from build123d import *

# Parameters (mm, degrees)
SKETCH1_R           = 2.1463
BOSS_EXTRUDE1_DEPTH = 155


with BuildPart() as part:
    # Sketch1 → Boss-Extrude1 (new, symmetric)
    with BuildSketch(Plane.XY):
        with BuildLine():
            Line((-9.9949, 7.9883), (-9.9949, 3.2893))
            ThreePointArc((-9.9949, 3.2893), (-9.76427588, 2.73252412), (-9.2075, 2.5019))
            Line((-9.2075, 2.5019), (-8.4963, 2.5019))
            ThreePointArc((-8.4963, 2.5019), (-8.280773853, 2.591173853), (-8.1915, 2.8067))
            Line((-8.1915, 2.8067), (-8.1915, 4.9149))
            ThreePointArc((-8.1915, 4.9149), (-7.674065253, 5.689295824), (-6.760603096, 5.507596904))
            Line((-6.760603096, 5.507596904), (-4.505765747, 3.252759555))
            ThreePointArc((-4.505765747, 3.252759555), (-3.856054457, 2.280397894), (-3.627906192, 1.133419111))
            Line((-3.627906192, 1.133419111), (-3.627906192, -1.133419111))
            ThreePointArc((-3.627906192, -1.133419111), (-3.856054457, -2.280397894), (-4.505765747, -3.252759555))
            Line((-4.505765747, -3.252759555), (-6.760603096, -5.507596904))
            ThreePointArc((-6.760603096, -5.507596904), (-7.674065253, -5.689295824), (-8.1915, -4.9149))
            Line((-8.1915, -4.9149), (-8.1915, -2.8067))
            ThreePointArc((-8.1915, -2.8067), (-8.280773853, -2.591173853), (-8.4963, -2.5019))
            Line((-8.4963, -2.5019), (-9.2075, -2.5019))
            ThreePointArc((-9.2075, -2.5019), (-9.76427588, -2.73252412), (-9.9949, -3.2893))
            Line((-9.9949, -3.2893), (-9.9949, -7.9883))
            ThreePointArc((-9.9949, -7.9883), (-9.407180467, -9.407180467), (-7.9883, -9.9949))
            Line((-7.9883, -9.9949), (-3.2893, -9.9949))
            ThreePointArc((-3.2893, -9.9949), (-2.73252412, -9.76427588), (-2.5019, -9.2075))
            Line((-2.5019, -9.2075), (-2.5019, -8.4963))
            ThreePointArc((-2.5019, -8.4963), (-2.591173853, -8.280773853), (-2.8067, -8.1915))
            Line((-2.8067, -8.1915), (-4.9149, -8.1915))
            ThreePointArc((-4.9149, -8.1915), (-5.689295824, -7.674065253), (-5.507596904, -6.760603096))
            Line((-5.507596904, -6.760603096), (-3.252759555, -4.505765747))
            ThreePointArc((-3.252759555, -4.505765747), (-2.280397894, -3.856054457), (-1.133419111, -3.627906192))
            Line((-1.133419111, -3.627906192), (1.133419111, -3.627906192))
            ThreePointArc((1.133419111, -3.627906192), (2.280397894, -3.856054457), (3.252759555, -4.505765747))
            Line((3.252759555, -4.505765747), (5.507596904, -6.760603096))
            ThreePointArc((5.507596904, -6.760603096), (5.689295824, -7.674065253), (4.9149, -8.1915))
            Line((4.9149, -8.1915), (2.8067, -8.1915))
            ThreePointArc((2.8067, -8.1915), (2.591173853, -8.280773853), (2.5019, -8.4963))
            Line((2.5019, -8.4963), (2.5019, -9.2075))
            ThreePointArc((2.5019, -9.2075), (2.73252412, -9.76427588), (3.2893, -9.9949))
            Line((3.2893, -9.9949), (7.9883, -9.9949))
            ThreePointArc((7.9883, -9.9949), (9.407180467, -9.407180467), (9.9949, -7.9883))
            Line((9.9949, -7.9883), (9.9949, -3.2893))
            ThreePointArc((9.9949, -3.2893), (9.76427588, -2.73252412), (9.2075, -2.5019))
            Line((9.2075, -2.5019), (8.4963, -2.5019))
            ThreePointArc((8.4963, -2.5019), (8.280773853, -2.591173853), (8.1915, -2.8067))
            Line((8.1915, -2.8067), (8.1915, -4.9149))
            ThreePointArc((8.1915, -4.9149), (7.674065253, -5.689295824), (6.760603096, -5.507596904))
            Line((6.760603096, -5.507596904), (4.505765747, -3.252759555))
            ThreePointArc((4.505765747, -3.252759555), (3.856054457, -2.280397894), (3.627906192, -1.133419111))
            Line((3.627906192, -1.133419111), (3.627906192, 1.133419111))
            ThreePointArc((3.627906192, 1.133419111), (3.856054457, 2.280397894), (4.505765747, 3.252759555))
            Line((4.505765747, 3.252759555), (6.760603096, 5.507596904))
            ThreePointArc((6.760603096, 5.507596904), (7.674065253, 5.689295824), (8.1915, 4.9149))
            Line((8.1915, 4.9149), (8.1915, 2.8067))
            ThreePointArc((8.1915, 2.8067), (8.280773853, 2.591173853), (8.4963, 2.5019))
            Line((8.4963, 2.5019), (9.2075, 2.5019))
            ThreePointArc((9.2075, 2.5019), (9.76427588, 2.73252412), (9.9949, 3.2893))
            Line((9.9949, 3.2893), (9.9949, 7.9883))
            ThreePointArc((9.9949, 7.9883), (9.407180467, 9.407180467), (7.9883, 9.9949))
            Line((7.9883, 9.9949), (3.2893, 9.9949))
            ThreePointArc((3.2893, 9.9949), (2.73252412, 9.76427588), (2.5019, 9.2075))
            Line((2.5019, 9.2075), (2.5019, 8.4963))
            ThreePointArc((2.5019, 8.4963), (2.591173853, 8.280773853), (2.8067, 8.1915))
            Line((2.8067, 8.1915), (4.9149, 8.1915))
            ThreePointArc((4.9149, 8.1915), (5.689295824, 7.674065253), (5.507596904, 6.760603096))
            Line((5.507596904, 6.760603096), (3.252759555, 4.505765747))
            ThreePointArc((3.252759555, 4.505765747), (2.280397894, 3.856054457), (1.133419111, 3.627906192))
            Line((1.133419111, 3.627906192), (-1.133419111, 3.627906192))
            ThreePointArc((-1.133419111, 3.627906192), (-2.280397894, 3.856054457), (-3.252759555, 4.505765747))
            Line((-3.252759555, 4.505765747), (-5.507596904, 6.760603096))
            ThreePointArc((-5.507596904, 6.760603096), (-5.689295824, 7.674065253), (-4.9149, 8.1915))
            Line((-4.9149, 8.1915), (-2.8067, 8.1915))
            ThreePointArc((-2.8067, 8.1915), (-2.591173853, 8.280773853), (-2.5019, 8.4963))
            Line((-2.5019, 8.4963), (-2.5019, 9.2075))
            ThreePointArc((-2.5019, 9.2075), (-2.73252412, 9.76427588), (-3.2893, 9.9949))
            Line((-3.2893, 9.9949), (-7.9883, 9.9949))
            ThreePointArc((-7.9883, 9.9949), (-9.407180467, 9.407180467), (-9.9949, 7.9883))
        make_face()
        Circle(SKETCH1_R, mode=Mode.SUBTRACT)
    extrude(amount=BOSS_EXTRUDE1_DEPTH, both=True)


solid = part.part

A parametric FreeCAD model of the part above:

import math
import FreeCAD as App
import Part
import Sketcher
Q = App.Units.Quantity

doc = App.newDocument("Part")
body = doc.addObject("PartDesign::Body", "Body")

sketch1 = doc.addObject("Sketcher::SketchObject", "Sketch")
body.addObject(sketch1)
sketch1.AttachmentSupport = (doc.XY_Plane, [""])
sketch1.MapMode = "FlatFace"
sketch1.addGeometry([
    Part.LineSegment(App.Vector(-9.99, 7.99, 0), App.Vector(-9.99, 3.29, 0)),
    Part.ArcOfCircle(Part.Circle(App.Vector(-9.21, 3.29, 0), App.Vector(0, 0, 1), 0.79), math.radians(180), math.radians(270)),
    Part.LineSegment(App.Vector(-9.21, 2.5, 0), App.Vector(-8.5, 2.5, 0)),
    Part.ArcOfCircle(Part.Circle(App.Vector(-8.5, 2.81, 0), App.Vector(0, 0, 1), 0.3), math.radians(-90), math.radians(0)),
    Part.LineSegment(App.Vector(-8.19, 2.81, 0), App.Vector(-8.19, 4.91, 0)),
    Part.ArcOfCircle(Part.Circle(App.Vector(-7.35, 4.91, 0), App.Vector(0, 0, 1), 0.84), math.radians(45), math.radians(180)),
    Part.LineSegment(App.Vector(-6.76, 5.51, 0), App.Vector(-4.51, 3.25, 0)),
    Part.ArcOfCircle(Part.Circle(App.Vector(-6.63, 1.13, 0), App.Vector(0, 0, 1), 3), math.radians(0), math.radians(45)),
    Part.LineSegment(App.Vector(-3.63, 1.13, 0), App.Vector(-3.63, -1.13, 0)),
    Part.ArcOfCircle(Part.Circle(App.Vector(-6.63, -1.13, 0), App.Vector(0, 0, 1), 3), math.radians(-45), math.radians(0)),
    Part.LineSegment(App.Vector(-4.51, -3.25, 0), App.Vector(-6.76, -5.51, 0)),
    Part.ArcOfCircle(Part.Circle(App.Vector(-7.35, -4.91, 0), App.Vector(0, 0, 1), 0.84), math.radians(180), math.radians(315)),
    Part.LineSegment(App.Vector(-8.19, -4.91, 0), App.Vector(-8.19, -2.81, 0)),
    Part.ArcOfCircle(Part.Circle(App.Vector(-8.5, -2.81, 0), App.Vector(0, 0, 1), 0.3), math.radians(0), math.radians(90)),
    Part.LineSegment(App.Vector(-8.5, -2.5, 0), App.Vector(-9.21, -2.5, 0)),
    Part.ArcOfCircle(Part.Circle(App.Vector(-9.21, -3.29, 0), App.Vector(0, 0, 1), 0.79), math.radians(90), math.radians(180)),
    Part.LineSegment(App.Vector(-9.99, -3.29, 0), App.Vector(-9.99, -7.99, 0)),
    Part.ArcOfCircle(Part.Circle(App.Vector(-7.99, -7.99, 0), App.Vector(0, 0, 1), 2.01), math.radians(180), math.radians(270)),
    Part.LineSegment(App.Vector(-7.99, -9.99, 0), App.Vector(-3.29, -9.99, 0)),
    Part.ArcOfCircle(Part.Circle(App.Vector(-3.29, -9.21, 0), App.Vector(0, 0, 1), 0.79), math.radians(-90), math.radians(0)),
    Part.LineSegment(App.Vector(-2.5, -9.21, 0), App.Vector(-2.5, -8.5, 0)),
    Part.ArcOfCircle(Part.Circle(App.Vector(-2.81, -8.5, 0), App.Vector(0, 0, 1), 0.3), math.radians(0), math.radians(90)),
    Part.LineSegment(App.Vector(-2.81, -8.19, 0), App.Vector(-4.91, -8.19, 0)),
    Part.ArcOfCircle(Part.Circle(App.Vector(-4.91, -7.35, 0), App.Vector(0, 0, 1), 0.84), math.radians(135), math.radians(270)),
    Part.LineSegment(App.Vector(-5.51, -6.76, 0), App.Vector(-3.25, -4.51, 0)),
    Part.ArcOfCircle(Part.Circle(App.Vector(-1.13, -6.63, 0), App.Vector(0, 0, 1), 3), math.radians(90), math.radians(135)),
    Part.LineSegment(App.Vector(-1.13, -3.63, 0), App.Vector(1.13, -3.63, 0)),
    Part.ArcOfCircle(Part.Circle(App.Vector(1.13, -6.63, 0), App.Vector(0, 0, 1), 3), math.radians(45), math.radians(90)),
    Part.LineSegment(App.Vector(3.25, -4.51, 0), App.Vector(5.51, -6.76, 0)),
    Part.ArcOfCircle(Part.Circle(App.Vector(4.91, -7.35, 0), App.Vector(0, 0, 1), 0.84), math.radians(-90), math.radians(45)),
    Part.LineSegment(App.Vector(4.91, -8.19, 0), App.Vector(2.81, -8.19, 0)),
    Part.ArcOfCircle(Part.Circle(App.Vector(2.81, -8.5, 0), App.Vector(0, 0, 1), 0.3), math.radians(90), math.radians(180)),
    Part.LineSegment(App.Vector(2.5, -8.5, 0), App.Vector(2.5, -9.21, 0)),
    Part.ArcOfCircle(Part.Circle(App.Vector(3.29, -9.21, 0), App.Vector(0, 0, 1), 0.79), math.radians(180), math.radians(270)),
    Part.LineSegment(App.Vector(3.29, -9.99, 0), App.Vector(7.99, -9.99, 0)),
    Part.ArcOfCircle(Part.Circle(App.Vector(7.99, -7.99, 0), App.Vector(0, 0, 1), 2.01), math.radians(-90), math.radians(0)),
    Part.LineSegment(App.Vector(9.99, -7.99, 0), App.Vector(9.99, -3.29, 0)),
    Part.ArcOfCircle(Part.Circle(App.Vector(9.21, -3.29, 0), App.Vector(0, 0, 1), 0.79), math.radians(0), math.radians(90)),
    Part.LineSegment(App.Vector(9.21, -2.5, 0), App.Vector(8.5, -2.5, 0)),
    Part.ArcOfCircle(Part.Circle(App.Vector(8.5, -2.81, 0), App.Vector(0, 0, 1), 0.3), math.radians(90), math.radians(180)),
    Part.LineSegment(App.Vector(8.19, -2.81, 0), App.Vector(8.19, -4.91, 0)),
    Part.ArcOfCircle(Part.Circle(App.Vector(7.35, -4.91, 0), App.Vector(0, 0, 1), 0.84), math.radians(-135), math.radians(0)),
    Part.LineSegment(App.Vector(6.76, -5.51, 0), App.Vector(4.51, -3.25, 0)),
    Part.ArcOfCircle(Part.Circle(App.Vector(6.63, -1.13, 0), App.Vector(0, 0, 1), 3), math.radians(180), math.radians(225)),
    Part.LineSegment(App.Vector(3.63, -1.13, 0), App.Vector(3.63, 1.13, 0)),
    Part.ArcOfCircle(Part.Circle(App.Vector(6.63, 1.13, 0), App.Vector(0, 0, 1), 3), math.radians(135), math.radians(180)),
    Part.LineSegment(App.Vector(4.51, 3.25, 0), App.Vector(6.76, 5.51, 0)),
    Part.ArcOfCircle(Part.Circle(App.Vector(7.35, 4.91, 0), App.Vector(0, 0, 1), 0.84), math.radians(0), math.radians(135)),
    Part.LineSegment(App.Vector(8.19, 4.91, 0), App.Vector(8.19, 2.81, 0)),
    Part.ArcOfCircle(Part.Circle(App.Vector(8.5, 2.81, 0), App.Vector(0, 0, 1), 0.3), math.radians(180), math.radians(270)),
    Part.LineSegment(App.Vector(8.5, 2.5, 0), App.Vector(9.21, 2.5, 0)),
    Part.ArcOfCircle(Part.Circle(App.Vector(9.21, 3.29, 0), App.Vector(0, 0, 1), 0.79), math.radians(-90), math.radians(0)),
    Part.LineSegment(App.Vector(9.99, 3.29, 0), App.Vector(9.99, 7.99, 0)),
    Part.ArcOfCircle(Part.Circle(App.Vector(7.99, 7.99, 0), App.Vector(0, 0, 1), 2.01), math.radians(0), math.radians(90)),
    Part.LineSegment(App.Vector(7.99, 9.99, 0), App.Vector(3.29, 9.99, 0)),
    Part.ArcOfCircle(Part.Circle(App.Vector(3.29, 9.21, 0), App.Vector(0, 0, 1), 0.79), math.radians(90), math.radians(180)),
    Part.LineSegment(App.Vector(2.5, 9.21, 0), App.Vector(2.5, 8.5, 0)),
    Part.ArcOfCircle(Part.Circle(App.Vector(2.81, 8.5, 0), App.Vector(0, 0, 1), 0.3), math.radians(180), math.radians(270)),
    Part.LineSegment(App.Vector(2.81, 8.19, 0), App.Vector(4.91, 8.19, 0)),
    Part.ArcOfCircle(Part.Circle(App.Vector(4.91, 7.35, 0), App.Vector(0, 0, 1), 0.84), math.radians(-45), math.radians(90)),
    Part.LineSegment(App.Vector(5.51, 6.76, 0), App.Vector(3.25, 4.51, 0)),
    Part.ArcOfCircle(Part.Circle(App.Vector(1.13, 6.63, 0), App.Vector(0, 0, 1), 3), math.radians(-90), math.radians(-45)),
    Part.LineSegment(App.Vector(1.13, 3.63, 0), App.Vector(-1.13, 3.63, 0)),
    Part.ArcOfCircle(Part.Circle(App.Vector(-1.13, 6.63, 0), App.Vector(0, 0, 1), 3), math.radians(-135), math.radians(-90)),
    Part.LineSegment(App.Vector(-3.25, 4.51, 0), App.Vector(-5.51, 6.76, 0)),
    Part.ArcOfCircle(Part.Circle(App.Vector(-4.91, 7.35, 0), App.Vector(0, 0, 1), 0.84), math.radians(90), math.radians(225)),
    Part.LineSegment(App.Vector(-4.91, 8.19, 0), App.Vector(-2.81, 8.19, 0)),
    Part.ArcOfCircle(Part.Circle(App.Vector(-2.81, 8.5, 0), App.Vector(0, 0, 1), 0.3), math.radians(-90), math.radians(0)),
    Part.LineSegment(App.Vector(-2.5, 8.5, 0), App.Vector(-2.5, 9.21, 0)),
    Part.ArcOfCircle(Part.Circle(App.Vector(-3.29, 9.21, 0), App.Vector(0, 0, 1), 0.79), math.radians(0), math.radians(90)),
    Part.LineSegment(App.Vector(-3.29, 9.99, 0), App.Vector(-7.99, 9.99, 0)),
    Part.ArcOfCircle(Part.Circle(App.Vector(-7.99, 7.99, 0), App.Vector(0, 0, 1), 2.01), math.radians(90), math.radians(180)),
    Part.Circle(App.Vector(0, 0, 0), App.Vector(0, 0, 1), 2.15),
], False)
sketch1.addConstraint([
    Sketcher.Constraint("Tangent", 0, 2, 1, 1),
    Sketcher.Constraint("Tangent", 1, 2, 2, 1),
    Sketcher.Constraint("Tangent", 2, 2, 3, 1),
    Sketcher.Constraint("Tangent", 3, 2, 4, 1),
    Sketcher.Constraint("Tangent", 4, 2, 5, 2),
    Sketcher.Constraint("Tangent", 5, 1, 6, 1),
    Sketcher.Constraint("Tangent", 6, 2, 7, 2),
    Sketcher.Constraint("Tangent", 7, 1, 8, 1),
    Sketcher.Constraint("Tangent", 8, 2, 9, 2),
    Sketcher.Constraint("Tangent", 9, 1, 10, 1),
    Sketcher.Constraint("Tangent", 10, 2, 11, 2),
    Sketcher.Constraint("Tangent", 11, 1, 12, 1),
    Sketcher.Constraint("Tangent", 12, 2, 13, 1),
    Sketcher.Constraint("Tangent", 13, 2, 14, 1),
    Sketcher.Constraint("Tangent", 14, 2, 15, 1),
    Sketcher.Constraint("Tangent", 15, 2, 16, 1),
    Sketcher.Constraint("Tangent", 16, 2, 17, 1),
    Sketcher.Constraint("Tangent", 17, 2, 18, 1),
    Sketcher.Constraint("Tangent", 18, 2, 19, 1),
    Sketcher.Constraint("Tangent", 19, 2, 20, 1),
    Sketcher.Constraint("Tangent", 20, 2, 21, 1),
    Sketcher.Constraint("Tangent", 21, 2, 22, 1),
    Sketcher.Constraint("Tangent", 22, 2, 23, 2),
    Sketcher.Constraint("Tangent", 23, 1, 24, 1),
    Sketcher.Constraint("Tangent", 24, 2, 25, 2),
    Sketcher.Constraint("Tangent", 25, 1, 26, 1),
    Sketcher.Constraint("Tangent", 26, 2, 27, 2),
    Sketcher.Constraint("Tangent", 27, 1, 28, 1),
    Sketcher.Constraint("Tangent", 28, 2, 29, 2),
    Sketcher.Constraint("Tangent", 29, 1, 30, 1),
    Sketcher.Constraint("Tangent", 30, 2, 31, 1),
    Sketcher.Constraint("Tangent", 31, 2, 32, 1),
    Sketcher.Constraint("Tangent", 32, 2, 33, 1),
    Sketcher.Constraint("Tangent", 33, 2, 34, 1),
    Sketcher.Constraint("Tangent", 34, 2, 35, 1),
    Sketcher.Constraint("Tangent", 35, 2, 36, 1),
    Sketcher.Constraint("Tangent", 36, 2, 37, 1),
    Sketcher.Constraint("Tangent", 37, 2, 38, 1),
    Sketcher.Constraint("Tangent", 38, 2, 39, 1),
    Sketcher.Constraint("Tangent", 39, 2, 40, 1),
    Sketcher.Constraint("Tangent", 40, 2, 41, 2),
    Sketcher.Constraint("Tangent", 41, 1, 42, 1),
    Sketcher.Constraint("Tangent", 42, 2, 43, 2),
    Sketcher.Constraint("Tangent", 43, 1, 44, 1),
    Sketcher.Constraint("Tangent", 44, 2, 45, 2),
    Sketcher.Constraint("Tangent", 45, 1, 46, 1),
    Sketcher.Constraint("Tangent", 46, 2, 47, 2),
    Sketcher.Constraint("Tangent", 47, 1, 48, 1),
    Sketcher.Constraint("Tangent", 48, 2, 49, 1),
    Sketcher.Constraint("Tangent", 49, 2, 50, 1),
    Sketcher.Constraint("Tangent", 50, 2, 51, 1),
    Sketcher.Constraint("Tangent", 51, 2, 52, 1),
    Sketcher.Constraint("Tangent", 52, 2, 53, 1),
    Sketcher.Constraint("Tangent", 53, 2, 54, 1),
    Sketcher.Constraint("Tangent", 54, 2, 55, 1),
    Sketcher.Constraint("Tangent", 55, 2, 56, 1),
    Sketcher.Constraint("Tangent", 56, 2, 57, 1),
    Sketcher.Constraint("Tangent", 57, 2, 58, 1),
    Sketcher.Constraint("Tangent", 58, 2, 59, 2),
    Sketcher.Constraint("Tangent", 59, 1, 60, 1),
    Sketcher.Constraint("Tangent", 60, 2, 61, 2),
    Sketcher.Constraint("Tangent", 61, 1, 62, 1),
    Sketcher.Constraint("Tangent", 62, 2, 63, 2),
    Sketcher.Constraint("Tangent", 63, 1, 64, 1),
    Sketcher.Constraint("Tangent", 64, 2, 65, 2),
    Sketcher.Constraint("Tangent", 65, 1, 66, 1),
    Sketcher.Constraint("Tangent", 66, 2, 67, 1),
    Sketcher.Constraint("Tangent", 67, 2, 68, 1),
    Sketcher.Constraint("Tangent", 68, 2, 69, 1),
    Sketcher.Constraint("Tangent", 69, 2, 70, 1),
    Sketcher.Constraint("Tangent", 70, 2, 71, 1),
    Sketcher.Constraint("Tangent", 71, 2, 0, 1),
    Sketcher.Constraint("Vertical", 0),
    Sketcher.Constraint("Horizontal", 2),
    Sketcher.Constraint("Vertical", 4),
    Sketcher.Constraint("Vertical", 8),
    Sketcher.Constraint("Vertical", 12),
    Sketcher.Constraint("Horizontal", 14),
    Sketcher.Constraint("Vertical", 16),
    Sketcher.Constraint("Horizontal", 18),
    Sketcher.Constraint("Vertical", 20),
    Sketcher.Constraint("Horizontal", 22),
    Sketcher.Constraint("Horizontal", 26),
    Sketcher.Constraint("Horizontal", 30),
    Sketcher.Constraint("Vertical", 32),
    Sketcher.Constraint("Horizontal", 34),
    Sketcher.Constraint("Vertical", 36),
    Sketcher.Constraint("Horizontal", 38),
    Sketcher.Constraint("Vertical", 40),
    Sketcher.Constraint("Vertical", 44),
    Sketcher.Constraint("Vertical", 48),
    Sketcher.Constraint("Horizontal", 50),
    Sketcher.Constraint("Vertical", 52),
    Sketcher.Constraint("Horizontal", 54),
    Sketcher.Constraint("Vertical", 56),
    Sketcher.Constraint("Horizontal", 58),
    Sketcher.Constraint("Horizontal", 62),
    Sketcher.Constraint("Horizontal", 66),
    Sketcher.Constraint("Vertical", 68),
    Sketcher.Constraint("Horizontal", 70),
    Sketcher.Constraint("Coincident", 72, 3, -1, 1),
    Sketcher.Constraint("Equal", 7, 9),
    Sketcher.Constraint("Equal", 5, 11),
    Sketcher.Constraint("Equal", 3, 13),
    Sketcher.Constraint("Equal", 1, 15),
    Sketcher.Constraint("Equal", 15, 19),
    Sketcher.Constraint("Equal", 13, 21),
    Sketcher.Constraint("Equal", 11, 23),
    Sketcher.Constraint("Equal", 9, 25),
    Sketcher.Constraint("Equal", 25, 27),
    Sketcher.Constraint("Equal", 23, 29),
    Sketcher.Constraint("Equal", 21, 31),
    Sketcher.Constraint("Equal", 19, 33),
    Sketcher.Constraint("Equal", 17, 35),
    Sketcher.Constraint("Equal", 33, 37),
    Sketcher.Constraint("Equal", 31, 39),
    Sketcher.Constraint("Equal", 29, 41),
    Sketcher.Constraint("Equal", 27, 43),
    Sketcher.Constraint("Equal", 43, 45),
    Sketcher.Constraint("Equal", 41, 47),
    Sketcher.Constraint("Equal", 39, 49),
    Sketcher.Constraint("Equal", 37, 51),
    Sketcher.Constraint("Equal", 35, 53),
    Sketcher.Constraint("Equal", 51, 55),
    Sketcher.Constraint("Equal", 49, 57),
    Sketcher.Constraint("Equal", 47, 59),
    Sketcher.Constraint("Equal", 45, 61),
    Sketcher.Constraint("Equal", 61, 63),
    Sketcher.Constraint("Equal", 59, 65),
    Sketcher.Constraint("Equal", 57, 67),
    Sketcher.Constraint("Equal", 55, 69),
    Sketcher.Constraint("Equal", 53, 71),
    Sketcher.Constraint("Symmetric", 1, 3, 37, 3, -1, 1),
    Sketcher.Constraint("Symmetric", 5, 3, 41, 3, -1, 1),
    Sketcher.Constraint("Symmetric", 7, 3, 43, 3, -1, 1),
    Sketcher.Constraint("Symmetric", 11, 3, 47, 3, -1, 1),
    Sketcher.Constraint("Symmetric", 15, 3, 51, 3, -1, 1),
    Sketcher.Constraint("Symmetric", 19, 3, 55, 3, -1, 1),
    Sketcher.Constraint("Symmetric", 23, 3, 59, 3, -1, 1),
    Sketcher.Constraint("Symmetric", 25, 3, 61, 3, -1, 1),
    Sketcher.Constraint("Symmetric", 29, 3, 65, 3, -1, 1),
    Sketcher.Constraint("Symmetric", 33, 3, 69, 3, -1, 1),
    Sketcher.Constraint("Symmetric", 23, 3, 29, 3, -2),
    Sketcher.Constraint("Symmetric", 19, 3, 33, 3, -2),
    Sketcher.Constraint("Symmetric", 15, 3, 37, 3, -2),
    Sketcher.Constraint("Symmetric", 11, 3, 41, 3, -2),
    Sketcher.Constraint("Perpendicular", 6, 10),
    Sketcher.Constraint("Parallel", 10, 24),
    Sketcher.Constraint("Perpendicular", 24, 28),
    Sketcher.Constraint("Perpendicular", 42, 46),
    Sketcher.Constraint("Perpendicular", 60, 64),
    Sketcher.Constraint("Horizontal", 9, 3, 43, 3),
    Sketcher.Constraint("Equal", 70, 0),
    Sketcher.Constraint("Equal", 66, 4),
    Sketcher.Constraint("Equal", 62, 8),
    Sketcher.Constraint("Equal", 50, 20),
    Sketcher.Constraint("Equal", 10, 24),
    Sketcher.Constraint("Diameter", 72, Q("0.169 in")),
    Sketcher.Constraint("Radius", 1, Q("0.031 in")),
    Sketcher.Constraint("Radius", 3, Q("0.012 in")),
    Sketcher.Constraint("Radius", 5, Q("0.033 in")),
    Sketcher.Constraint("Radius", 7, Q("0.118 in")),
    Sketcher.Constraint("Radius", 17, Q("0.079 in")),
    Sketcher.Constraint("DistanceX", 2, 1, 2, 2, Q("0.028 in")),
    Sketcher.Constraint("DistanceX", 18, 1, 18, 2, Q("0.185 in")),
    Sketcher.Constraint("DistanceX", 22, 2, 22, 1, Q("0.083 in")),
    Sketcher.Constraint("DistanceX", 1, 3, -1, 1, Q("0.3625 in")),
    Sketcher.Constraint("DistanceX", 26, 1, 26, 2, 2.266838),
])
pad1 = doc.addObject("PartDesign::Pad", "Pad")
body.addObject(pad1)
pad1.Profile = sketch1
pad1.Length = 310
pad1.Midplane = True

doc.recompute()
